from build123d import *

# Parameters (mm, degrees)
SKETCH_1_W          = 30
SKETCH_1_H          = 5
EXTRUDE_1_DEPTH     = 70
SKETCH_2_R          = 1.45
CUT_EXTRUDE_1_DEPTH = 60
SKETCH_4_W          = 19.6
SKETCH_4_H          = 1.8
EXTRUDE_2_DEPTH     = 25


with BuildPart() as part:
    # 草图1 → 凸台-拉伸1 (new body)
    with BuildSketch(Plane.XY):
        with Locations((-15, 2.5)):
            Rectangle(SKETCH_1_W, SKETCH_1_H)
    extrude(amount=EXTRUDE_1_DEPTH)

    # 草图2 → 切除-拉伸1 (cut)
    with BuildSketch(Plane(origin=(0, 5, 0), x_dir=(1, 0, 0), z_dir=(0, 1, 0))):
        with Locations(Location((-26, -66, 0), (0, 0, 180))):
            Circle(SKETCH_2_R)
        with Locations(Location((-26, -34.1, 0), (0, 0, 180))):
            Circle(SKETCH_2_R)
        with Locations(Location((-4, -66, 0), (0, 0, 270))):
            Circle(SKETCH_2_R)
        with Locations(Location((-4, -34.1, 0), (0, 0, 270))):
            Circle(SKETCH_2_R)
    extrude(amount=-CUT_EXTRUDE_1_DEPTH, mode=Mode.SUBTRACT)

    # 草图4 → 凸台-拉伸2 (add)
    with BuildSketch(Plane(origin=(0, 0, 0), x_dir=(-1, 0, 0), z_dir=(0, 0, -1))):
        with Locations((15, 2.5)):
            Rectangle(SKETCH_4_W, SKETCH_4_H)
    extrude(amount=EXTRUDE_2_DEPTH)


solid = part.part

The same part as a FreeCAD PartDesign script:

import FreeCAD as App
import Part
import Sketcher

V = App.Vector


def add_polygon(sketch, points):
    """Adds a closed chain of lines whose ends are joined by coincident constraints."""
    first, n = sketch.GeometryCount, len(points)
    for a, b in zip(points, points[1:] + points[:1]):
        sketch.addGeometry(Part.LineSegment(App.Vector(*a, 0), App.Vector(*b, 0)), False)
    for i in range(n):
        sketch.addConstraint(Sketcher.Constraint("Coincident", first + i, 2, first + (i + 1) % n, 1))

doc = App.newDocument("Part")
body = doc.addObject("PartDesign::Body", "Body")

sketch1 = body.newObject("Sketcher::SketchObject", "Sketch")
sketch1.AttachmentSupport = (doc.getObject("XY_Plane"), [""])
sketch1.MapMode = "FlatFace"
add_polygon(sketch1, [(-30, 5), (-30, 0), (0, 0), (0, 5)])
sketch1.addConstraint([
    Sketcher.Constraint("Vertical", 0),
    Sketcher.Constraint("Horizontal", 1),
    Sketcher.Constraint("Vertical", 2),
    Sketcher.Constraint("Horizontal", 3),
    Sketcher.Constraint("Coincident", 1, 2, -1, 1),
    Sketcher.Constraint("DistanceX", 1, 1, 1, 2, 30.0),
    Sketcher.Constraint("DistanceY", 0, 2, 0, 1, 5.0),
])
pad1 = body.newObject("PartDesign::Pad", "Pad")
pad1.Profile = sketch1
pad1.Length = 70

sketch2 = body.newObject("Sketcher::SketchObject", "Sketch001")
sketch2.AttachmentSupport = (doc.getObject("XZ_Plane"), [""])
sketch2.MapMode = "FlatFace"
sketch2.AttachmentOffset = App.Placement(V(0, 0, -5), App.Rotation())
sketch2.addGeometry([
    Part.Circle(V(-26, 66, 0), V(0, 0, 1), 1.4),
    Part.Circle(V(-26, 34.1, 0), V(0, 0, 1), 1.4),
    Part.Circle(V(-4, 66, 0), V(0, 0, 1), 1.4),
    Part.Circle(V(-4, 34.1, 0), V(0, 0, 1), 1.4),
], False)
sketch2.addConstraint([
    Sketcher.Constraint("Equal", 0, 1),
    Sketcher.Constraint("Equal", 1, 2),
    Sketcher.Constraint("Equal", 2, 3),
    Sketcher.Constraint("Horizontal", 0, 3, 2, 3),
    Sketcher.Constraint("Horizontal", 1, 3, 3, 3),
    Sketcher.Constraint("Vertical", 0, 3, 1, 3),
    Sketcher.Constraint("Vertical", 2, 3, 3, 3),
    Sketcher.Constraint("Diameter", 0, 2.9),
    Sketcher.Constraint("DistanceX", 0, 3, -1, 1, 26.0),
    Sketcher.Constraint("DistanceY", -1, 1, 0, 3, 66.0),
    Sketcher.Constraint("DistanceX", 2, 3, -1, 1, 4.0),
    Sketcher.Constraint("DistanceY", -1, 1, 1, 3, 34.1),
])
pocket1 = body.newObject("PartDesign::Pocket", "Pocket")
pocket1.Profile = sketch2
pocket1.Length = 60
pocket1.Reversed = True

sketch3 = body.newObject("Sketcher::SketchObject", "Sketch002")
sketch3.AttachmentSupport = (doc.getObject("XY_Plane"), [""])
sketch3.MapMode = "FlatFace"
add_polygon(sketch3, [(-5.2, 3.4), (-5.2, 1.6), (-24.8, 1.6), (-24.8, 3.4)])
sketch3.addConstraint([
    Sketcher.Constraint("Vertical", 0),
    Sketcher.Constraint("Horizontal", 1),
    Sketcher.Constraint("Vertical", 2),
    Sketcher.Constraint("Horizontal", 3),
    Sketcher.Constraint("DistanceX", 1, 2, 1, 1, 19.6),
    Sketcher.Constraint("DistanceY", 0, 2, 0, 1, 1.8),
    Sketcher.Constraint("DistanceX", 0, 2, -1, 1, 5.2),
    Sketcher.Constraint("DistanceY", -1, 1, 0, 2, 1.6),
])
pad2 = body.newObject("PartDesign::Pad", "Pad001")
pad2.Profile = sketch3
pad2.Length = 25
pad2.Reversed = True

doc.recompute()
